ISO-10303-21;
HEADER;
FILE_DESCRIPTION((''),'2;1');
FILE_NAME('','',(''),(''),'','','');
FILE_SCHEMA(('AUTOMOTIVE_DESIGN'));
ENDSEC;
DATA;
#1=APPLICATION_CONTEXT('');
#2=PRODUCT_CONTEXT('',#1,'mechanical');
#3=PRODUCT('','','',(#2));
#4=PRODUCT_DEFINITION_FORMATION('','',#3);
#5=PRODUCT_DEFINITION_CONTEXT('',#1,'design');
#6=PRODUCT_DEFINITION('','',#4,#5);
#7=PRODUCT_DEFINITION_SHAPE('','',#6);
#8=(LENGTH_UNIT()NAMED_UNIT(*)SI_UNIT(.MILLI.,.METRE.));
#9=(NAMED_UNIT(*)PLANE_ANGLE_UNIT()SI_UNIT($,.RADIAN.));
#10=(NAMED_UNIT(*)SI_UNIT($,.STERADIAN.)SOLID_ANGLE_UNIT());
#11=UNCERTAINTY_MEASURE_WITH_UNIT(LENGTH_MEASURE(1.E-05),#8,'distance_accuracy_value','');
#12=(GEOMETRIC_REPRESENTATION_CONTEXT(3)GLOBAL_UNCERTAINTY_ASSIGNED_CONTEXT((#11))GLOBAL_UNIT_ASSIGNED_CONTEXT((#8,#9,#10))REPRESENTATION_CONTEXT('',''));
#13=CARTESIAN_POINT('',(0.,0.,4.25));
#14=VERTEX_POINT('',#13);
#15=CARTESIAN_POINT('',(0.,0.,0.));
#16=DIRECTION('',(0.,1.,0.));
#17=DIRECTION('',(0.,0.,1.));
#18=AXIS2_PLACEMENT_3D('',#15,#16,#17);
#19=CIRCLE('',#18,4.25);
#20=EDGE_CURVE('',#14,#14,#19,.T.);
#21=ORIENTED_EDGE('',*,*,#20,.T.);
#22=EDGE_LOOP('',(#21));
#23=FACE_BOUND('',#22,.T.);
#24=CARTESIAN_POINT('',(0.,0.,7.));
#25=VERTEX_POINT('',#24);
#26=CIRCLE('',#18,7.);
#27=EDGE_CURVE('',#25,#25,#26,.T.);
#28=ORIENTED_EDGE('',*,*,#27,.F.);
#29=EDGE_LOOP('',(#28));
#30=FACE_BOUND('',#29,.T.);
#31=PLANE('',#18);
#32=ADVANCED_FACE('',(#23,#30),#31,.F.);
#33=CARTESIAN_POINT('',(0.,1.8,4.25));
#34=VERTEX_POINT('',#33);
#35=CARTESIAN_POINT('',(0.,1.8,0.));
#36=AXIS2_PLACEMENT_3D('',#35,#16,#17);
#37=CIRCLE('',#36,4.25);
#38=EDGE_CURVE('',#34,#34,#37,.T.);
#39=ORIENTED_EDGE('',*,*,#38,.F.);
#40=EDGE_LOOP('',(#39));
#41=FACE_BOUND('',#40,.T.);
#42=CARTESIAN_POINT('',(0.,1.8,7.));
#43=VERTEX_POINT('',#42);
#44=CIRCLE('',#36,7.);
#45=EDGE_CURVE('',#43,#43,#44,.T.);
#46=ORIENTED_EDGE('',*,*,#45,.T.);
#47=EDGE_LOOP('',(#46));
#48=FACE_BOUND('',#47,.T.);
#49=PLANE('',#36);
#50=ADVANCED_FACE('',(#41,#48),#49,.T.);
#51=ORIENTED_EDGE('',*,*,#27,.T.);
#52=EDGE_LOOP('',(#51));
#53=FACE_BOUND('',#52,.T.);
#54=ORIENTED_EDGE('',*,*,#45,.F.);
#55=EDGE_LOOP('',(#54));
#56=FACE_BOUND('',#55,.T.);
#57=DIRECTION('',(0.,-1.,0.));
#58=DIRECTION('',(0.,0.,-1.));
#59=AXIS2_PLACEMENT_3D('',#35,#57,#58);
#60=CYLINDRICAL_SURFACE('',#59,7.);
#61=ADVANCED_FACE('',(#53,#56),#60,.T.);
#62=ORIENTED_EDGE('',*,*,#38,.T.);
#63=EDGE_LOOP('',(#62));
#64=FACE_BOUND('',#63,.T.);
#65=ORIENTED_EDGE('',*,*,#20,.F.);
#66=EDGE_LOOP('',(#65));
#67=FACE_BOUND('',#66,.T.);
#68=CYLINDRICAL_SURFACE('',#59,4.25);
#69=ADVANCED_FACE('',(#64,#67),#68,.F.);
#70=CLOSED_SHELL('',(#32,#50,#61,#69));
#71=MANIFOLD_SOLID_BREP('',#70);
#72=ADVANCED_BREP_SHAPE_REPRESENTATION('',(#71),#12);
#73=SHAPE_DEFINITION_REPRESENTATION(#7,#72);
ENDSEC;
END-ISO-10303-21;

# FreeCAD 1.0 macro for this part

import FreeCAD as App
import Part
import Sketcher
from FreeCAD import Vector

doc = App.newDocument("Part")
params = doc.addObject("Spreadsheet::Sheet", "Params")
for row, (alias, value) in enumerate([
    ("sketch1_diameter", "14 mm"),
    ("sketch1_diameter2", "8.5 mm"),
    ("pad1_length", "1.8 mm"),
], start=1):
    params.set(f"A{row}", alias)
    params.set(f"B{row}", "=" + value)
    params.setAlias(f"B{row}", alias)

body = doc.addObject("PartDesign::Body", "Body")

# Sketch on XZ plane
sketch1 = doc.addObject("Sketcher::SketchObject", "Sketch")
body.addObject(sketch1)
sketch1.AttachmentSupport = (doc.XZ_Plane, [""])
sketch1.MapMode = "FlatFace"
sketch1.addGeometry(Part.Circle(Vector(0, 0, 0), Vector(0, 0, 1), 7), False)
sketch1.addGeometry(Part.Circle(Vector(0, 0, 0), Vector(0, 0, 1), 4.2), False)
sketch1.addConstraint(Sketcher.Constraint("Coincident", 0, 3, -1, 1))
sketch1.addConstraint(Sketcher.Constraint("Coincident", 1, 3, -1, 1))
sketch1.addConstraint(Sketcher.Constraint("Diameter", 0, 14.0))
sketch1.addConstraint(Sketcher.Constraint("Diameter", 1, 8.5))
sketch1.setExpression("Constraints[2]", "Params.sketch1_diameter")
sketch1.setExpression("Constraints[3]", "Params.sketch1_diameter2")
pad1 = doc.addObject("PartDesign::Pad", "Pad")
body.addObject(pad1)
pad1.Profile = sketch1
pad1.setExpression("Length", "Params.pad1_length")
pad1.Reversed = True

doc.recompute()
